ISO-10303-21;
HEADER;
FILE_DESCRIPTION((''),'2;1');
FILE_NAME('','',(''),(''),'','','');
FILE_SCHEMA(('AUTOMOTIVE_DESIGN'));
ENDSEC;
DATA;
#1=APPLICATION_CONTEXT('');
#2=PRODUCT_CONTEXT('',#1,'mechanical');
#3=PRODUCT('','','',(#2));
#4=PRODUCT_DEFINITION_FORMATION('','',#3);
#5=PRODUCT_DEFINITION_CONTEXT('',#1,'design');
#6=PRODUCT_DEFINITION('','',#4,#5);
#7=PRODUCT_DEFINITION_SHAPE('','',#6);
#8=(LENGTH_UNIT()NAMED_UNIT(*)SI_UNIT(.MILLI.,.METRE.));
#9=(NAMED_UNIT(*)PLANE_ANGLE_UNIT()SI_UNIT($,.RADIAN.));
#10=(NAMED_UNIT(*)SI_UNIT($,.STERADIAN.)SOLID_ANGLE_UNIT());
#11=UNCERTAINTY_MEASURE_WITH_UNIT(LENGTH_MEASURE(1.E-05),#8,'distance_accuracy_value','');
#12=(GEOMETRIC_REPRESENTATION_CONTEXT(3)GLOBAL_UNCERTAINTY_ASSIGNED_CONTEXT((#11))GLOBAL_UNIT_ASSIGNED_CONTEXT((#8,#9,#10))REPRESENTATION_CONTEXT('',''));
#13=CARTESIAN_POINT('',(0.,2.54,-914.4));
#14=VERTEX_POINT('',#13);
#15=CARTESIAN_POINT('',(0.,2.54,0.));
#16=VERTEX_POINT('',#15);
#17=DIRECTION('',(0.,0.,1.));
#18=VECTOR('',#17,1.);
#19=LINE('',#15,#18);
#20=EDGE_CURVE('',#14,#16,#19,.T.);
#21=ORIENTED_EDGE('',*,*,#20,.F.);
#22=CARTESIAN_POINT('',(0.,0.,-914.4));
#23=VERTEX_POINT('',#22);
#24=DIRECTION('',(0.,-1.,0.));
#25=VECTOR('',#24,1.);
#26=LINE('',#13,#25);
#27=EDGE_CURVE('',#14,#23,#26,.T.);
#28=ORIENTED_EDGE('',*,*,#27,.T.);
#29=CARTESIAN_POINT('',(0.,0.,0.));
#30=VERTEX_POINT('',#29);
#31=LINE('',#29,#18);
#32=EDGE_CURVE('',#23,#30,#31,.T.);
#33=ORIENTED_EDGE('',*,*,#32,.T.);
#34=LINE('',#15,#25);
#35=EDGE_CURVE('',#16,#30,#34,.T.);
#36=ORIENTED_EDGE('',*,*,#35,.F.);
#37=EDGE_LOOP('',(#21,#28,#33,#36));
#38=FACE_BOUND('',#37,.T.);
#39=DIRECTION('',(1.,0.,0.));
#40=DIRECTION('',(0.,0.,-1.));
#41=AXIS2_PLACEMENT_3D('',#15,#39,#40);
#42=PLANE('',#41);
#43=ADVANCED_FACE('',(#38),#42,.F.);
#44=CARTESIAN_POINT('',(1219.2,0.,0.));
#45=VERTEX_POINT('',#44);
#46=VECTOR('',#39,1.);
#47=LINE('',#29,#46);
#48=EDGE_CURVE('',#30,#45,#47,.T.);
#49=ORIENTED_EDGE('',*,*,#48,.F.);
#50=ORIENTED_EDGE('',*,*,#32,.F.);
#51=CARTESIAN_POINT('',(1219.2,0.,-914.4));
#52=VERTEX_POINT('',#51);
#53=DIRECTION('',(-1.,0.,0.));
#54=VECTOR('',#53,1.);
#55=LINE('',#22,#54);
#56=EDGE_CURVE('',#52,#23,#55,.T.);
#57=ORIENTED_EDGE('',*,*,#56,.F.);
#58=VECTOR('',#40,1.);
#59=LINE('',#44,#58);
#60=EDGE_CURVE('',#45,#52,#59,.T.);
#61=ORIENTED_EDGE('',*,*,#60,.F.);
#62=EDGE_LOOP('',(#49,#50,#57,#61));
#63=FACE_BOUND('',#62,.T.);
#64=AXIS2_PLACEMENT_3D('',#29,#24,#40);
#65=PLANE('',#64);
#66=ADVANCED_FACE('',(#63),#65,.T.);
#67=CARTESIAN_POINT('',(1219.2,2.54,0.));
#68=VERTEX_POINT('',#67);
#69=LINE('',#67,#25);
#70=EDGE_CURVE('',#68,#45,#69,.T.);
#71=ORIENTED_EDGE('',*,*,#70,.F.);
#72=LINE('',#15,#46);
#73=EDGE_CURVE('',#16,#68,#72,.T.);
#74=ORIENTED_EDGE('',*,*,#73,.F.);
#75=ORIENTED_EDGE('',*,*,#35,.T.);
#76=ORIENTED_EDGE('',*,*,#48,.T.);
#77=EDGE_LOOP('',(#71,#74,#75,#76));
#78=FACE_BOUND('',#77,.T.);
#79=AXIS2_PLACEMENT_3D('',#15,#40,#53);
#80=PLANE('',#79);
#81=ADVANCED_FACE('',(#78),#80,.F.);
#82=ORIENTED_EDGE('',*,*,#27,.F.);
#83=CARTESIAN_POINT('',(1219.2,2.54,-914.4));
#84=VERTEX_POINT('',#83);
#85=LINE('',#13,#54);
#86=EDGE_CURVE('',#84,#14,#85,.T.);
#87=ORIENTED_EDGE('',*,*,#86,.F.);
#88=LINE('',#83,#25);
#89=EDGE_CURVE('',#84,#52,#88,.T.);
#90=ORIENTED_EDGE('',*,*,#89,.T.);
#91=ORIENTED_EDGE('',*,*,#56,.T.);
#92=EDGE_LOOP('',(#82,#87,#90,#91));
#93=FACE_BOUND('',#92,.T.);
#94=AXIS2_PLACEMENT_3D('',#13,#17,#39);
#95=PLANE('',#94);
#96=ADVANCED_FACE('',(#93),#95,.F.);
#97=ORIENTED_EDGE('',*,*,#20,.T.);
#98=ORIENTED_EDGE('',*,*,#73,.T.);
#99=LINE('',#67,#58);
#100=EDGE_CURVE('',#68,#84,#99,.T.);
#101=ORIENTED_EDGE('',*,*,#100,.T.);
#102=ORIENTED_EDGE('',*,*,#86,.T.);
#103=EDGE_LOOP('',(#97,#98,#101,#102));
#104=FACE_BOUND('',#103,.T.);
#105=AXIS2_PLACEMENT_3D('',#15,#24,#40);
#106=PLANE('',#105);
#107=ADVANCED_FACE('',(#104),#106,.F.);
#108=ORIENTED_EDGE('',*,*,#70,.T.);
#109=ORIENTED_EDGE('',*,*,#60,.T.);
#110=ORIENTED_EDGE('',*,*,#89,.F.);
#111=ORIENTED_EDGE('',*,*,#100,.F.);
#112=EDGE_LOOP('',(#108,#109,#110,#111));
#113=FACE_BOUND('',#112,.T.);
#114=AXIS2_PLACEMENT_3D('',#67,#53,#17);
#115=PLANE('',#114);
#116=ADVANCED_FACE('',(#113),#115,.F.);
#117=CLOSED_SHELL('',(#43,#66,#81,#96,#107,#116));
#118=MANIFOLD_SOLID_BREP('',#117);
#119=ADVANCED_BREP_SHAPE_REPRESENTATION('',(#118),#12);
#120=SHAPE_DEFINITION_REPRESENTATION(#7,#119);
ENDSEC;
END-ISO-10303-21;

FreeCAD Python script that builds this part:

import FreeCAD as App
import Part
import Sketcher
Q = App.Units.Quantity


def add_polygon(sketch, points):
    """Adds a closed chain of lines whose ends are joined by coincident constraints."""
    first, n = sketch.GeometryCount, len(points)
    for a, b in zip(points, points[1:] + points[:1]):
        sketch.addGeometry(Part.LineSegment(App.Vector(*a, 0), App.Vector(*b, 0)), False)
    for i in range(n):
        sketch.addConstraint(Sketcher.Constraint("Coincident", first + i, 2, first + (i + 1) % n, 1))

doc = App.newDocument("Part")
body = doc.addObject("PartDesign::Body", "Body")

# Sketch on XZ plane
sketch1 = body.newObject("Sketcher::SketchObject", "Sketch")
sketch1.AttachmentSupport = (doc.getObject("XZ_Plane"), [""])
sketch1.MapMode = "FlatFace"
add_polygon(sketch1, [(0, -914), (0, 0), (1219, 0), (1219, -914)])  # lines 0-3
sketch1.addConstraint([
    Sketcher.Constraint("Vertical", 0),
    Sketcher.Constraint("Horizontal", 1),
    Sketcher.Constraint("Vertical", 2),
    Sketcher.Constraint("Horizontal", 3),
    Sketcher.Constraint("Coincident", 0, 2, -1, 1),
    Sketcher.Constraint("DistanceX", 1, 1, 1, 2, Q("48 in")),
    Sketcher.Constraint("DistanceY", 0, 1, 0, 2, Q("36 in")),
])
pad1 = body.newObject("PartDesign::Pad", "Pad")
pad1.Profile = sketch1
pad1.Length = Q("0.1 in")
pad1.Reversed = True

doc.recompute()
